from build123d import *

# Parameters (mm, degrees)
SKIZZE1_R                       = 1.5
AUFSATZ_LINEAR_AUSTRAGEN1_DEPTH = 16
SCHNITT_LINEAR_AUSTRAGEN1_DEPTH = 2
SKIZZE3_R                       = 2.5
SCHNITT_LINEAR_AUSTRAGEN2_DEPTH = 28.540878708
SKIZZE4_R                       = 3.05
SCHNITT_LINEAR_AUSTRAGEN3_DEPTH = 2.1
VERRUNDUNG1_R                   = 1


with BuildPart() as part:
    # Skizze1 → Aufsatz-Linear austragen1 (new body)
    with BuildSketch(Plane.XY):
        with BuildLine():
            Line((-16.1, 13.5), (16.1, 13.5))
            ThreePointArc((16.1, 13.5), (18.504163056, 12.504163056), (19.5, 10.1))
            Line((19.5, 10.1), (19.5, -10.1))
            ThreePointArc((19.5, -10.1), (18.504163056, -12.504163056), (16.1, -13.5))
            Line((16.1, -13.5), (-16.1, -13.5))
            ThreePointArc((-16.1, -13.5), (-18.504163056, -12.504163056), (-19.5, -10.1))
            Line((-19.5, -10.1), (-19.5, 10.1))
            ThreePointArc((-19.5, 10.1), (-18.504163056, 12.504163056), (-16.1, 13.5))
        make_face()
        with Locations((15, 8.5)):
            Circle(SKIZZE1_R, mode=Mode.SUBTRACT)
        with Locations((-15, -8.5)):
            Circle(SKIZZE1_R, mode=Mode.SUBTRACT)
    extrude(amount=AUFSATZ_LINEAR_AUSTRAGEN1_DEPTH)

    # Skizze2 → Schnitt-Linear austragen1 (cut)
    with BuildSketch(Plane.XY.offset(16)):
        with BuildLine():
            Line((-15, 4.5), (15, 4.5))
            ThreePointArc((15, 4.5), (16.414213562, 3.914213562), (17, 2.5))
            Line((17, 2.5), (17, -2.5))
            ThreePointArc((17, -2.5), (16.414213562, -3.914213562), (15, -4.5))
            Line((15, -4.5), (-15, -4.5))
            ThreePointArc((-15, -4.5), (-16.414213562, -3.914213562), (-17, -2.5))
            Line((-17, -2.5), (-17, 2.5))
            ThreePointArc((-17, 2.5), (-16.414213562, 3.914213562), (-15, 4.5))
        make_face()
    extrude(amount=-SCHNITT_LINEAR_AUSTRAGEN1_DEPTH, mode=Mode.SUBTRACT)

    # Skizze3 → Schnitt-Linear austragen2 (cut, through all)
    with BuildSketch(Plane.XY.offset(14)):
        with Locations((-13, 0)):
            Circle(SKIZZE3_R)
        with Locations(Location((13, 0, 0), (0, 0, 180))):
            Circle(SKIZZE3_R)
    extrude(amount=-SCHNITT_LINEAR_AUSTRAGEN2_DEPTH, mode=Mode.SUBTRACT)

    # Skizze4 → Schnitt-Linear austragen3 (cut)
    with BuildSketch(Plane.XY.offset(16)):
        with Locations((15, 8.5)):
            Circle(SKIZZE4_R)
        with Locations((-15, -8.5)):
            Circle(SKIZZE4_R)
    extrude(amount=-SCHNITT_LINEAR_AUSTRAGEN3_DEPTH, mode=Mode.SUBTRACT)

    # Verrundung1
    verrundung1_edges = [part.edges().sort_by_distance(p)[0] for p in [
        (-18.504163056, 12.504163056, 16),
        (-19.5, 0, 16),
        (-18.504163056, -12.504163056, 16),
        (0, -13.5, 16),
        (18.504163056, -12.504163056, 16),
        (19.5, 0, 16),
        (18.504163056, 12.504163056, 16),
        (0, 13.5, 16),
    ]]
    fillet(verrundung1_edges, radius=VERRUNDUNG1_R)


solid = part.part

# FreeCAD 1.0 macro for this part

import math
import FreeCAD as App
import Part
import Sketcher

V = App.Vector
Q = App.Units.Quantity


def edges_at(feature, points):
    """Names of the edges that pass closest to the given points."""
    edges = feature.Shape.Edges
    near = lambda p: min(range(len(edges)), key=lambda i: edges[i].distToShape(Part.Vertex(*p))[0])
    return sorted({f"Edge{near(p) + 1}" for p in points})

doc = App.newDocument("Part")
body = doc.addObject("PartDesign::Body", "Body")

# Sketch on XY plane
sketch1 = doc.addObject("Sketcher::SketchObject", "Sketch")
body.addObject(sketch1)
sketch1.AttachmentSupport = (doc.XY_Plane, [""])
sketch1.MapMode = "FlatFace"
sketch1.addGeometry(Part.LineSegment(V(16.1, 13.5, 0), V(-16.1, 13.5, 0)), False)
sketch1.addGeometry(Part.ArcOfCircle(Part.Circle(V(-16.1, 10.1, 0), V(0, 0, 1), 3.4), math.radians(90), math.radians(180)), False)
sketch1.addGeometry(Part.LineSegment(V(-19.5, 10.1, 0), V(-19.5, -10.1, 0)), False)
sketch1.addGeometry(Part.ArcOfCircle(Part.Circle(V(-16.1, -10.1, 0), V(0, 0, 1), 3.4), math.radians(180), math.radians(270)), False)
sketch1.addGeometry(Part.LineSegment(V(-16.1, -13.5, 0), V(16.1, -13.5, 0)), False)
sketch1.addGeometry(Part.ArcOfCircle(Part.Circle(V(16.1, -10.1, 0), V(0, 0, 1), 3.4), math.radians(-90), math.radians(0)), False)
sketch1.addGeometry(Part.LineSegment(V(19.5, -10.1, 0), V(19.5, 10.1, 0)), False)
sketch1.addGeometry(Part.ArcOfCircle(Part.Circle(V(16.1, 10.1, 0), V(0, 0, 1), 3.4), math.radians(0), math.radians(90)), False)
sketch1.addGeometry(Part.Circle(V(-15, -8.5, 0), V(0, 0, 1), 1.5), False)
sketch1.addGeometry(Part.Circle(V(15, 8.5, 0), V(0, 0, 1), 1.5), False)
sketch1.addConstraint(Sketcher.Constraint("Tangent", 0, 2, 1, 1))
sketch1.addConstraint(Sketcher.Constraint("Tangent", 1, 2, 2, 1))
sketch1.addConstraint(Sketcher.Constraint("Tangent", 2, 2, 3, 1))
sketch1.addConstraint(Sketcher.Constraint("Tangent", 3, 2, 4, 1))
sketch1.addConstraint(Sketcher.Constraint("Tangent", 4, 2, 5, 1))
sketch1.addConstraint(Sketcher.Constraint("Tangent", 5, 2, 6, 1))
sketch1.addConstraint(Sketcher.Constraint("Tangent", 6, 2, 7, 1))
sketch1.addConstraint(Sketcher.Constraint("Tangent", 7, 2, 0, 1))
sketch1.addConstraint(Sketcher.Constraint("Horizontal", 0))
sketch1.addConstraint(Sketcher.Constraint("Vertical", 2))
sketch1.addConstraint(Sketcher.Constraint("Horizontal", 4))
sketch1.addConstraint(Sketcher.Constraint("Vertical", 6))
sketch1.addConstraint(Sketcher.Constraint("Equal", 1, 3))
sketch1.addConstraint(Sketcher.Constraint("Equal", 3, 5))
sketch1.addConstraint(Sketcher.Constraint("Equal", 5, 7))
sketch1.addConstraint(Sketcher.Constraint("Equal", 8, 9))
sketch1.addConstraint(Sketcher.Constraint("Symmetric", 1, 3, 5, 3, -1, 1))
sketch1.addConstraint(Sketcher.Constraint("Symmetric", 8, 3, 9, 3, -1, 1))
sketch1.addConstraint(Sketcher.Constraint("Diameter", 8, Q("3 mm")))
sketch1.addConstraint(Sketcher.Constraint("Radius", 1, Q("3.4 mm")))
sketch1.addConstraint(Sketcher.Constraint("DistanceX", 0, 2, 0, 1, Q("32.2 mm")))
sketch1.addConstraint(Sketcher.Constraint("DistanceY", 2, 2, 2, 1, Q("20.2 mm")))
sketch1.addConstraint(Sketcher.Constraint("DistanceX", 8, 3, -1, 1, Q("15 mm")))
sketch1.addConstraint(Sketcher.Constraint("DistanceY", 8, 3, 9, 3, Q("17 mm")))
pad1 = doc.addObject("PartDesign::Pad", "Pad")
body.addObject(pad1)
pad1.Profile = sketch1
pad1.Length = 16

# Sketch on XY plane
sketch2 = doc.addObject("Sketcher::SketchObject", "Sketch001")
body.addObject(sketch2)
sketch2.AttachmentSupport = (doc.XY_Plane, [""])
sketch2.MapMode = "FlatFace"
sketch2.AttachmentOffset = App.Placement(V(0, 0, 16), App.Rotation())
sketch2.addGeometry(Part.LineSegment(V(15, 4.5, 0), V(-15, 4.5, 0)), False)
sketch2.addGeometry(Part.ArcOfCircle(Part.Circle(V(-15, 2.5, 0), V(0, 0, 1), 2), math.radians(90), math.radians(180)), False)
sketch2.addGeometry(Part.LineSegment(V(-17, 2.5, 0), V(-17, -2.5, 0)), False)
sketch2.addGeometry(Part.ArcOfCircle(Part.Circle(V(-15, -2.5, 0), V(0, 0, 1), 2), math.radians(-180), math.radians(-90)), False)
sketch2.addGeometry(Part.LineSegment(V(-15, -4.5, 0), V(15, -4.5, 0)), False)
sketch2.addGeometry(Part.ArcOfCircle(Part.Circle(V(15, -2.5, 0), V(0, 0, 1), 2), math.radians(-90), math.radians(0)), False)
sketch2.addGeometry(Part.LineSegment(V(17, -2.5, 0), V(17, 2.5, 0)), False)
sketch2.addGeometry(Part.ArcOfCircle(Part.Circle(V(15, 2.5, 0), V(0, 0, 1), 2), math.radians(0), math.radians(90)), False)
sketch2.addConstraint(Sketcher.Constraint("Tangent", 0, 2, 1, 1))
sketch2.addConstraint(Sketcher.Constraint("Tangent", 1, 2, 2, 1))
sketch2.addConstraint(Sketcher.Constraint("Tangent", 2, 2, 3, 1))
sketch2.addConstraint(Sketcher.Constraint("Tangent", 3, 2, 4, 1))
sketch2.addConstraint(Sketcher.Constraint("Tangent", 4, 2, 5, 1))
sketch2.addConstraint(Sketcher.Constraint("Tangent", 5, 2, 6, 1))
sketch2.addConstraint(Sketcher.Constraint("Tangent", 6, 2, 7, 1))
sketch2.addConstraint(Sketcher.Constraint("Tangent", 7, 2, 0, 1))
sketch2.addConstraint(Sketcher.Constraint("Horizontal", 0))
sketch2.addConstraint(Sketcher.Constraint("Vertical", 2))
sketch2.addConstraint(Sketcher.Constraint("Horizontal", 4))
sketch2.addConstraint(Sketcher.Constraint("Vertical", 6))
sketch2.addConstraint(Sketcher.Constraint("Equal", 1, 3))
sketch2.addConstraint(Sketcher.Constraint("Equal", 3, 5))
sketch2.addConstraint(Sketcher.Constraint("Equal", 5, 7))
sketch2.addConstraint(Sketcher.Constraint("Symmetric", 1, 3, 5, 3, -1, 1))
sketch2.addConstraint(Sketcher.Constraint("Radius", 1, Q("2 mm")))
sketch2.addConstraint(Sketcher.Constraint("DistanceX", 0, 2, 0, 1, Q("30 mm")))
sketch2.addConstraint(Sketcher.Constraint("DistanceY", 2, 2, 2, 1, Q("5 mm")))
pocket1 = doc.addObject("PartDesign::Pocket", "Pocket")
body.addObject(pocket1)
pocket1.Profile = sketch2
pocket1.Length = 2

# Sketch on XY plane
sketch3 = doc.addObject("Sketcher::SketchObject", "Sketch002")
body.addObject(sketch3)
sketch3.AttachmentSupport = (doc.XY_Plane, [""])
sketch3.MapMode = "FlatFace"
sketch3.AttachmentOffset = App.Placement(V(0, 0, 14), App.Rotation())
sketch3.addGeometry(Part.Circle(V(-13, 0, 0), V(0, 0, 1), 2.5), False)
sketch3.addGeometry(Part.Circle(V(13, 0, 0), V(0, 0, 1), 2.5), False)
sketch3.addConstraint(Sketcher.Constraint("Equal", 0, 1))
sketch3.addConstraint(Sketcher.Constraint("Symmetric", 0, 3, 1, 3, -1, 1))
sketch3.addConstraint(Sketcher.Constraint("PointOnObject", 0, 3, -1))
sketch3.addConstraint(Sketcher.Constraint("Diameter", 0, Q("5 mm")))
sketch3.addConstraint(Sketcher.Constraint("DistanceX", 0, 3, -1, 1, Q("13 mm")))
pocket2 = doc.addObject("PartDesign::Pocket", "Pocket001")
body.addObject(pocket2)
pocket2.Profile = sketch3
pocket2.Type = "ThroughAll"

# Sketch on XY plane
sketch4 = doc.addObject("Sketcher::SketchObject", "Sketch003")
body.addObject(sketch4)
sketch4.AttachmentSupport = (doc.XY_Plane, [""])
sketch4.MapMode = "FlatFace"
sketch4.AttachmentOffset = App.Placement(V(0, 0, 16), App.Rotation())
sketch4.addGeometry(Part.Circle(V(15, 8.5, 0), V(0, 0, 1), 3), False)
sketch4.addGeometry(Part.Circle(V(-15, -8.5, 0), V(0, 0, 1), 3), False)
sketch4.addConstraint(Sketcher.Constraint("Equal", 0, 1))
sketch4.addConstraint(Sketcher.Constraint("Symmetric", 0, 3, 1, 3, -1, 1))
sketch4.addConstraint(Sketcher.Constraint("Diameter", 0, Q("6.1 mm")))
sketch4.addConstraint(Sketcher.Constraint("DistanceX", -1, 1, 0, 3, Q("15 mm")))
sketch4.addConstraint(Sketcher.Constraint("DistanceY", 1, 3, 0, 3, Q("17 mm")))
pocket3 = doc.addObject("PartDesign::Pocket", "Pocket002")
body.addObject(pocket3)
pocket3.Profile = sketch4
pocket3.Length = 2.1
doc.recompute()

fillet = doc.addObject("PartDesign::Fillet", "Fillet")
body.addObject(fillet)
fillet.Base = (pocket3, edges_at(pocket3, [
    (-18.504, 12.504, 16),
    (-19.5, 0, 16),
    (-18.504, -12.504, 16),
    (0, -13.5, 16),
    (18.504, -12.504, 16),
    (19.5, 0, 16),
    (18.504, 12.504, 16),
    (0, 13.5, 16),
]))
fillet.Radius = 1

doc.recompute()
